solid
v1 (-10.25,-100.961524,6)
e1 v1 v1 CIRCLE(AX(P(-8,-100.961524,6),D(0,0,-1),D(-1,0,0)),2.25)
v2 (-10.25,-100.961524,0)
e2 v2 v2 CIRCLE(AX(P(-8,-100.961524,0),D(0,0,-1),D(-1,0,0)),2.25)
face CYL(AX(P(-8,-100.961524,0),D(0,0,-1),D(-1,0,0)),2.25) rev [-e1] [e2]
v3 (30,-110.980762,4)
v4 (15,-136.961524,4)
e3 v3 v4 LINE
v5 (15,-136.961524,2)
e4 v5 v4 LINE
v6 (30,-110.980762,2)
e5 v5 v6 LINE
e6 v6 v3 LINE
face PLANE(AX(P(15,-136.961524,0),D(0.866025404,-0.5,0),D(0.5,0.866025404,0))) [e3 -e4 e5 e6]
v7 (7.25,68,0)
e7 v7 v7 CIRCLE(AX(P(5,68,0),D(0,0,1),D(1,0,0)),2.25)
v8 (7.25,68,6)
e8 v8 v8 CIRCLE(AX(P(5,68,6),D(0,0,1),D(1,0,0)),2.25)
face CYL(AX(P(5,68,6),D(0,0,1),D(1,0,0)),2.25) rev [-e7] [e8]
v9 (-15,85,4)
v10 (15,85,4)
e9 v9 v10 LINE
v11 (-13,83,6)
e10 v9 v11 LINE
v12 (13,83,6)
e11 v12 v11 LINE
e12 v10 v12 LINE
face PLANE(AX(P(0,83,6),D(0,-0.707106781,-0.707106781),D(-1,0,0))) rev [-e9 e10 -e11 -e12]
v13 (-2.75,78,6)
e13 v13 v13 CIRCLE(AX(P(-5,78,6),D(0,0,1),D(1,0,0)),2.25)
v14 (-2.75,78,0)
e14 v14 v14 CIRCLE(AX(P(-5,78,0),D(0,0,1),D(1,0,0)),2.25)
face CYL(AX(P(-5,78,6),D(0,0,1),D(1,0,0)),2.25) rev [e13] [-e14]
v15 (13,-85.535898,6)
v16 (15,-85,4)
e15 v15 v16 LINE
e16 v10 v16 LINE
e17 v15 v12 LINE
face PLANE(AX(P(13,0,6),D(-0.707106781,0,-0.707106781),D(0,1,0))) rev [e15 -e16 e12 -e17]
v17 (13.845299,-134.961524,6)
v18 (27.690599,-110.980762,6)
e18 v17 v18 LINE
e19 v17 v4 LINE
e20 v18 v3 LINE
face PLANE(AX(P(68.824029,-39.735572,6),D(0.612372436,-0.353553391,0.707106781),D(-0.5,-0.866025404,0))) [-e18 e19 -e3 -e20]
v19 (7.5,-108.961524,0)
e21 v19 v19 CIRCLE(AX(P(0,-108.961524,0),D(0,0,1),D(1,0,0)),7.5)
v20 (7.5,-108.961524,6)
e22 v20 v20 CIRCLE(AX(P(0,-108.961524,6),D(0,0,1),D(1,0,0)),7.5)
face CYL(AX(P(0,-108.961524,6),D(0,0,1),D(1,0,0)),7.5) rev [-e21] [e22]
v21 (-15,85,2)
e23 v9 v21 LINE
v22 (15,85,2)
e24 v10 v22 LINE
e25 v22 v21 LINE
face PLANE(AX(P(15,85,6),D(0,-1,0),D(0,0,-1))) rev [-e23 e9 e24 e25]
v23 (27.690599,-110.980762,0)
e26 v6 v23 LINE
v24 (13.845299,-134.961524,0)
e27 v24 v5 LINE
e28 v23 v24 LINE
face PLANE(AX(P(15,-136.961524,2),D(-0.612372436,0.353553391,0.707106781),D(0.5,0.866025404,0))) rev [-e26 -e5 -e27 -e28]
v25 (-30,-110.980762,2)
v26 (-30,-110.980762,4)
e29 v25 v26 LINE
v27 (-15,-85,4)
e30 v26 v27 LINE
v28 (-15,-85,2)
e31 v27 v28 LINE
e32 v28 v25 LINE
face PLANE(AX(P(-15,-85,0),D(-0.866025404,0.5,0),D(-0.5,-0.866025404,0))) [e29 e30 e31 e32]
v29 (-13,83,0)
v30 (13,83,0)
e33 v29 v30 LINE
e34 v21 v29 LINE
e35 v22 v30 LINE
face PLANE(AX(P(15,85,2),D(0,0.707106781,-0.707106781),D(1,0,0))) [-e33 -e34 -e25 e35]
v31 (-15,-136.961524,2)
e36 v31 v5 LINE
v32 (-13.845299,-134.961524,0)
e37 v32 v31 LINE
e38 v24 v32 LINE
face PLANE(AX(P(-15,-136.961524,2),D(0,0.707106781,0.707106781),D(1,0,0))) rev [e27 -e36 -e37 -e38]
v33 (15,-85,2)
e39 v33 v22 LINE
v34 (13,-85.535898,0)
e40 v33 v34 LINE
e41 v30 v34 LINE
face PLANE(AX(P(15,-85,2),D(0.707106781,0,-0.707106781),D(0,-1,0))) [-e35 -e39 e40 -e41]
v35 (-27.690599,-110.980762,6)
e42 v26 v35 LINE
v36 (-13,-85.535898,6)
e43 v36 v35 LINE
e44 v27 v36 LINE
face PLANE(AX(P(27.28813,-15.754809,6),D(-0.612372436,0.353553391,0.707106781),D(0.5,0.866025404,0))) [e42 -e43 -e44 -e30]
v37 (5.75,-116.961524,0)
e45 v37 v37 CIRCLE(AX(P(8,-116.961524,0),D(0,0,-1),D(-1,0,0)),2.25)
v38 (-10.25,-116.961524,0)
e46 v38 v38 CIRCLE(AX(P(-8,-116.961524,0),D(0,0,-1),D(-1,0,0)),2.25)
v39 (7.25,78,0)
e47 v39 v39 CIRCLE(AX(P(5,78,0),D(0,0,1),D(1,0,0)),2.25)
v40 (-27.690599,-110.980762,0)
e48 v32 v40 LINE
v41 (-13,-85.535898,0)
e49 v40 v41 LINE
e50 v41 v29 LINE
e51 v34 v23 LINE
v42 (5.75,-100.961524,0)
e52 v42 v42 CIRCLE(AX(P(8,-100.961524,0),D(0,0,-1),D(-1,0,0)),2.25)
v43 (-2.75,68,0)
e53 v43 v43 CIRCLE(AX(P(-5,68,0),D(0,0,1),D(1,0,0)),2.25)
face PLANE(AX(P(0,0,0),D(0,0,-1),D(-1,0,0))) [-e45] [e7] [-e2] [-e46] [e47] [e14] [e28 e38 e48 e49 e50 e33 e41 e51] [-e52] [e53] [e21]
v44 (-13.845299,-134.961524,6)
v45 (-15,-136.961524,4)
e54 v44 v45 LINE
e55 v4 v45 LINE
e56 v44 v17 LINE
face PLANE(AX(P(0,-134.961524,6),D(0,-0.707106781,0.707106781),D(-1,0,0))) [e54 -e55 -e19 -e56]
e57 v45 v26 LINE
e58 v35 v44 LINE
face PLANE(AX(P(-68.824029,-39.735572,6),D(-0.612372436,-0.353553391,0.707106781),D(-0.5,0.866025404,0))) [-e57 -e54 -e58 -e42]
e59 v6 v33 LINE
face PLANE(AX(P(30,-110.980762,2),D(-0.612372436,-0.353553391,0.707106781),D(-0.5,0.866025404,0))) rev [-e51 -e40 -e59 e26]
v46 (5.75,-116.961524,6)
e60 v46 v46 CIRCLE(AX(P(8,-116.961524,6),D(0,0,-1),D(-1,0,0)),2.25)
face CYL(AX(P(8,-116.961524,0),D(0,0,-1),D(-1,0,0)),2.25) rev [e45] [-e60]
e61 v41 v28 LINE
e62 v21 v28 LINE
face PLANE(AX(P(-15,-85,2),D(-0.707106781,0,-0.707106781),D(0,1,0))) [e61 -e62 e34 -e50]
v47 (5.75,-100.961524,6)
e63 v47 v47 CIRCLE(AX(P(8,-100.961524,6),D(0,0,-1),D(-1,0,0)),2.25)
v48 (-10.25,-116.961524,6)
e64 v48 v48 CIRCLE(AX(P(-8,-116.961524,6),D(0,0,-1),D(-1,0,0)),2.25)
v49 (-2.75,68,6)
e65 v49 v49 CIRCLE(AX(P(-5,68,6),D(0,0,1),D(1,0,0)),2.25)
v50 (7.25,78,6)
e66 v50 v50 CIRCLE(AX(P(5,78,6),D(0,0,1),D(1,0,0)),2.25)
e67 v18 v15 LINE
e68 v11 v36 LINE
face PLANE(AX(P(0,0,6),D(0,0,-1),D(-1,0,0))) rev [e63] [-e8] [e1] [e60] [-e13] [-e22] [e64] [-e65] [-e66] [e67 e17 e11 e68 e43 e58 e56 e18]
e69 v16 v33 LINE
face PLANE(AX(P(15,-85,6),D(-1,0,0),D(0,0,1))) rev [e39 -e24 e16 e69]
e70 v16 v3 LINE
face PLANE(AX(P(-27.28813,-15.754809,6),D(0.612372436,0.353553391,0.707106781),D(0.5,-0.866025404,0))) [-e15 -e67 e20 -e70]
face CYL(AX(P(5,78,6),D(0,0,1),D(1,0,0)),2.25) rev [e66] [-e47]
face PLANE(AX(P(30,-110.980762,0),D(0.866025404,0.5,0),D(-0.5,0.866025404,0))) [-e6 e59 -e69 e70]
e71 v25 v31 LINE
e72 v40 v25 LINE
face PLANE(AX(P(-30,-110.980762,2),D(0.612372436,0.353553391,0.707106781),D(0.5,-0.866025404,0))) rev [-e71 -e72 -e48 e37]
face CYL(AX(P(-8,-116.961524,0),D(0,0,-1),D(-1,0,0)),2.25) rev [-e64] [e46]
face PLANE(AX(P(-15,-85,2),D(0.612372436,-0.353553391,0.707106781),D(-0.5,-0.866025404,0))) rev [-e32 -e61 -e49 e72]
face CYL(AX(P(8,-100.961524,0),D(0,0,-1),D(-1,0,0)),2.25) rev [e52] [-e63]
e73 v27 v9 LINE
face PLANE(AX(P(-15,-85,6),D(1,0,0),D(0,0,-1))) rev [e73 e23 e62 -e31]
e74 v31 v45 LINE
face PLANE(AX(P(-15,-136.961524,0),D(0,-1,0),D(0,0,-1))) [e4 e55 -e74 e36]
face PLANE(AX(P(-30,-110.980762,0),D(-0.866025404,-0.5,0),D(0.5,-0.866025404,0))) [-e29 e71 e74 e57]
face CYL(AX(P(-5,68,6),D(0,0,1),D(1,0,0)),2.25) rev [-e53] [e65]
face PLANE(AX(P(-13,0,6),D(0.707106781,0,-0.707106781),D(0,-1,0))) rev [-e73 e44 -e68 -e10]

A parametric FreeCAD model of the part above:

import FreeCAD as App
import Part
import Sketcher
from FreeCAD import Vector
Q = App.Units.Quantity


def edges_at(feature, points):
    """Names of the edges that pass closest to the given points."""
    edges = feature.Shape.Edges
    near = lambda p: min(range(len(edges)), key=lambda i: edges[i].distToShape(Part.Vertex(*p))[0])
    return sorted({f"Edge{near(p) + 1}" for p in points})


def add_polygon(sketch, points):
    """Adds a closed chain of lines whose ends are joined by coincident constraints."""
    first, n = sketch.GeometryCount, len(points)
    for a, b in zip(points, points[1:] + points[:1]):
        sketch.addGeometry(Part.LineSegment(App.Vector(*a, 0), App.Vector(*b, 0)), False)
    for i in range(n):
        sketch.addConstraint(Sketcher.Constraint("Coincident", first + i, 2, first + (i + 1) % n, 1))

doc = App.newDocument("Part")
params = doc.addObject("Spreadsheet::Sheet", "Params")
for row, (alias, value) in enumerate([
    ("sketch1_width", "30 mm"),
    ("sketch1_height", "170 mm"),
    ("pad1_length", "6 mm"),
    ("sketch2_width", "30 mm"),
    ("sketch2_length", "30 mm"),
    ("pad2_length", "6 mm"),
    ("chamfer_size", "2 mm"),
    ("sketch3_diameter", "4.5 mm"),
    ("hole_diameter", "4.5 mm"),
    ("sketch4_diameter", "4.5 mm"),
    ("hole2_diameter", "4.5 mm"),
    ("sketch5_diameter", "15 mm"),
    ("hole3_diameter", "15 mm"),
], start=1):
    params.set(f"A{row}", alias)
    params.set(f"B{row}", "=" + value)
    params.setAlias(f"B{row}", alias)

body = doc.addObject("PartDesign::Body", "Body")

# Sketch on XY plane
sketch1 = body.newObject("Sketcher::SketchObject", "Sketch")
sketch1.AttachmentSupport = (doc.getObject("XY_Plane"), [""])
sketch1.MapMode = "FlatFace"
add_polygon(sketch1, [(-15, -85), (15, -85), (15, 85), (-15, 85)])  # lines 0-3
sketch1.addConstraint([
    Sketcher.Constraint("Horizontal", 0),
    Sketcher.Constraint("Vertical", 1),
    Sketcher.Constraint("Horizontal", 2),
    Sketcher.Constraint("Vertical", 3),
    Sketcher.Constraint("Symmetric", 0, 2, 2, 2, -1, 1),
    Sketcher.Constraint("DistanceX", 0, 1, 0, 2, Q("30 mm")),
    Sketcher.Constraint("DistanceY", 1, 1, 1, 2, Q("170 mm")),
])
sketch1.setExpression("Constraints[9]", "Params.sketch1_width")
sketch1.setExpression("Constraints[10]", "Params.sketch1_height")
pad1 = body.newObject("PartDesign::Pad", "Pad")
pad1.Profile = sketch1
pad1.setExpression("Length", "Params.pad1_length")

# Sketch on XY plane
sketch2 = body.newObject("Sketcher::SketchObject", "Sketch001")
sketch2.AttachmentSupport = (doc.getObject("XY_Plane"), [""])
sketch2.MapMode = "FlatFace"
sketch2.AttachmentOffset = App.Placement(Vector(0, 0, 6), App.Rotation())
add_polygon(sketch2, [(-30, -111), (-15, -137), (15, -137), (30, -111), (15, -85), (-15, -85)])  # lines 0-5
sketch2.addConstraint([
    Sketcher.Constraint("Horizontal", 1),
    Sketcher.Constraint("Horizontal", 4),
    Sketcher.Constraint("Symmetric", 2, 2, 5, 2, -2),
    Sketcher.Constraint("Parallel", 0, 3),
    Sketcher.Constraint("Parallel", 2, 5),
    Sketcher.Constraint("Vertical", 1, 2, 3, 2),
    Sketcher.Constraint("Vertical", 0, 2, 4, 2),
    Sketcher.Constraint("DistanceX", 1, 1, 1, 2, Q("30 mm")),
    Sketcher.Constraint("Angle", 0, Q("-60 deg")),
    Sketcher.Constraint("Distance", 0, Q("30 mm")),
    Sketcher.Constraint("DistanceY", 3, 2, -1, 1, Q("85 mm")),
])
sketch2.setExpression("Constraints[13]", "Params.sketch2_width")
sketch2.setExpression("Constraints[15]", "Params.sketch2_length")
pad2 = body.newObject("PartDesign::Pad", "Pad001")
pad2.Profile = sketch2
pad2.setExpression("Length", "Params.pad2_length")
pad2.Reversed = True
doc.recompute()

chamfer = body.newObject("PartDesign::Chamfer", "Chamfer")
chamfer.Base = (pad2, edges_at(pad2, [
    (-22.5, -97.99, 0),
    (22.5, -97.99, 0),
    (22.5, -123.971, 0),
    (0, -136.962, 0),
    (-22.5, -123.971, 0),
    (-22.5, -97.99, 6),
    (15, 0, 6),
    (-22.5, -123.971, 6),
    (0, -136.962, 6),
    (22.5, -123.971, 6),
    (22.5, -97.99, 6),
    (0, 85, 6),
    (15, 0, 0),
    (-15, 0, 0),
    (0, 85, 0),
    (-15, 0, 6),
]))
chamfer.setExpression("Size", "Params.chamfer_size")

# Sketch on XY plane
sketch3 = body.newObject("Sketcher::SketchObject", "Sketch002")
sketch3.AttachmentSupport = (doc.getObject("XY_Plane"), [""])
sketch3.MapMode = "FlatFace"
sketch3.addGeometry([
    Part.Circle(Vector(-8, -117, 0), Vector(0, 0, 1), 2.2),
    Part.Circle(Vector(8, -117, 0), Vector(0, 0, 1), 2.2),
    Part.Circle(Vector(8, -101, 0), Vector(0, 0, 1), 2.2),
    Part.Circle(Vector(-8, -101, 0), Vector(0, 0, 1), 2.2),
], False)
sketch3.addConstraint([
    Sketcher.Constraint("Equal", 0, 1),
    Sketcher.Constraint("Equal", 1, 2),
    Sketcher.Constraint("Equal", 2, 3),
    Sketcher.Constraint("Symmetric", 0, 3, 1, 3, -2),
    Sketcher.Constraint("Symmetric", 2, 3, 3, 3, -2),
    Sketcher.Constraint("Vertical", 1, 3, 2, 3),
    Sketcher.Constraint("Diameter", 0, Q("4.5 mm")),
    Sketcher.Constraint("DistanceX", 0, 3, -1, 1, Q("8 mm")),
    Sketcher.Constraint("DistanceY", 1, 3, 2, 3, Q("16 mm")),
    Sketcher.Constraint("DistanceY", 0, 3, -1, 1, Q("116.961524 mm")),
])
sketch3.setExpression("Constraints[6]", "Params.sketch3_diameter")
doc.recompute()
hole = body.newObject("PartDesign::Hole", "Hole")
hole.Profile = sketch3
hole.ThreadType = "None"
hole.setExpression("Diameter", "Params.hole_diameter")
hole.DepthType = "ThroughAll"
hole.Reversed = True

# Sketch on XY plane
sketch4 = body.newObject("Sketcher::SketchObject", "Sketch003")
sketch4.AttachmentSupport = (doc.getObject("XY_Plane"), [""])
sketch4.MapMode = "FlatFace"
sketch4.AttachmentOffset = App.Placement(Vector(0, 0, 6), App.Rotation())
sketch4.addGeometry([
    Part.Circle(Vector(-5, 68, 0), Vector(0, 0, 1), 2.2),
    Part.Circle(Vector(5, 68, 0), Vector(0, 0, 1), 2.2),
    Part.Circle(Vector(5, 78, 0), Vector(0, 0, 1), 2.2),
    Part.Circle(Vector(-5, 78, 0), Vector(0, 0, 1), 2.2),
], False)
sketch4.addConstraint([
    Sketcher.Constraint("Equal", 0, 1),
    Sketcher.Constraint("Equal", 1, 2),
    Sketcher.Constraint("Equal", 2, 3),
    Sketcher.Constraint("Symmetric", 0, 3, 1, 3, -2),
    Sketcher.Constraint("Symmetric", 2, 3, 3, 3, -2),
    Sketcher.Constraint("Vertical", 1, 3, 2, 3),
    Sketcher.Constraint("Diameter", 0, Q("4.5 mm")),
    Sketcher.Constraint("DistanceX", 0, 3, -1, 1, Q("5 mm")),
    Sketcher.Constraint("DistanceY", -1, 1, 0, 3, Q("68 mm")),
    Sketcher.Constraint("DistanceY", -1, 1, 2, 3, Q("78 mm")),
])
sketch4.setExpression("Constraints[6]", "Params.sketch4_diameter")
doc.recompute()
hole2 = body.newObject("PartDesign::Hole", "Hole001")
hole2.Profile = sketch4
hole2.ThreadType = "None"
hole2.setExpression("Diameter", "Params.hole2_diameter")
hole2.DepthType = "ThroughAll"

# Sketch on XY plane
sketch5 = body.newObject("Sketcher::SketchObject", "Sketch004")
sketch5.AttachmentSupport = (doc.getObject("XY_Plane"), [""])
sketch5.MapMode = "FlatFace"
sketch5.AttachmentOffset = App.Placement(Vector(0, 0, 6), App.Rotation())
sketch5.addGeometry(Part.Circle(Vector(0, -109, 0), Vector(0, 0, 1), 8), False)
sketch5.addConstraint([
    Sketcher.Constraint("PointOnObject", 0, 3, -2),
    Sketcher.Constraint("Diameter", 0, Q("15 mm")),
    Sketcher.Constraint("DistanceY", 0, 3, -1, 1, Q("108.961524 mm")),
])
sketch5.setExpression("Constraints[1]", "Params.sketch5_diameter")
doc.recompute()
hole3 = body.newObject("PartDesign::Hole", "Hole002")
hole3.Profile = sketch5
hole3.ThreadType = "None"
hole3.setExpression("Diameter", "Params.hole3_diameter")
hole3.DepthType = "ThroughAll"

doc.recompute()
